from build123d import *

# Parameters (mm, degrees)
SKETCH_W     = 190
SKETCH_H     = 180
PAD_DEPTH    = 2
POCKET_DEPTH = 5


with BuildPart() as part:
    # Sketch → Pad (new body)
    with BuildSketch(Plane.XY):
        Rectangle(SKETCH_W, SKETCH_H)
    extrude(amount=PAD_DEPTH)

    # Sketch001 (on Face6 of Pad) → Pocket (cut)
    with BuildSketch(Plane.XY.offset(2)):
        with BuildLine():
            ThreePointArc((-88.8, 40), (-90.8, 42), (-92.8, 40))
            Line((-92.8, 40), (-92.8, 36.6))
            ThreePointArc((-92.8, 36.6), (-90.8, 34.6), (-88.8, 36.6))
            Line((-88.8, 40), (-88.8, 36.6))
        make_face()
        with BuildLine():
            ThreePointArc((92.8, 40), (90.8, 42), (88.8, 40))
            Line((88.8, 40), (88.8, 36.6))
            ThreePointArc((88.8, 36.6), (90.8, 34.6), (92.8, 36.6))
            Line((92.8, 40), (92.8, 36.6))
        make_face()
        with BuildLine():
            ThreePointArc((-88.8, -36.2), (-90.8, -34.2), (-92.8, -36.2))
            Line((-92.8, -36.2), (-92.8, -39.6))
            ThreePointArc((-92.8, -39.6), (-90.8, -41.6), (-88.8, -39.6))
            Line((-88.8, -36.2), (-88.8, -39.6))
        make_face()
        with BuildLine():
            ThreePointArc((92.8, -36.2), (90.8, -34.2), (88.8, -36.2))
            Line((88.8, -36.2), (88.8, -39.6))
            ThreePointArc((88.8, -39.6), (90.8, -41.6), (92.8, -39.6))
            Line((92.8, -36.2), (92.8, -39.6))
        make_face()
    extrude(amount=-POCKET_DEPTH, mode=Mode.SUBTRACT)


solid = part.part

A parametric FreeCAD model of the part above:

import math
import FreeCAD as App
import Part
import Sketcher

doc = App.newDocument("Part")
body = doc.addObject("PartDesign::Body", "Body")

# Sketch on XY plane
sketch1 = body.newObject("Sketcher::SketchObject", "Sketch")
sketch1.AttachmentSupport = (doc.getObject("XY_Plane"), [""])
sketch1.MapMode = "FlatFace"
sketch1.addGeometry([
    Part.LineSegment(App.Vector(-95, 90, 0), App.Vector(-95, -90, 0)),
    Part.LineSegment(App.Vector(-95, -90, 0), App.Vector(95, -90, 0)),
    Part.LineSegment(App.Vector(95, -90, 0), App.Vector(95, 90, 0)),
    Part.LineSegment(App.Vector(95, 90, 0), App.Vector(-95, 90, 0)),
], False)
sketch1.addConstraint([
    Sketcher.Constraint("Coincident", 0, 2, 1, 1),
    Sketcher.Constraint("Coincident", 1, 2, 2, 1),
    Sketcher.Constraint("Coincident", 2, 2, 3, 1),
    Sketcher.Constraint("Coincident", 3, 2, 0, 1),
    Sketcher.Constraint("Vertical", 0),
    Sketcher.Constraint("Horizontal", 1),
    Sketcher.Constraint("Vertical", 2),
    Sketcher.Constraint("Horizontal", 3),
    Sketcher.Constraint("Symmetric", 0, 2, 2, 2, -1, 1),
    Sketcher.Constraint("DistanceX", 1, 1, 1, 2, 190.0),
    Sketcher.Constraint("DistanceY", 0, 2, 0, 1, 180.0),
])
pad1 = body.newObject("PartDesign::Pad", "Pad")
pad1.Profile = sketch1
pad1.Length = 2

# Sketch on XY plane
sketch2 = body.newObject("Sketcher::SketchObject", "Sketch001")
sketch2.AttachmentSupport = (doc.getObject("XY_Plane"), [""])
sketch2.MapMode = "FlatFace"
sketch2.AttachmentOffset = App.Placement(App.Vector(0, 0, 2), App.Rotation())
sketch2.addGeometry([
    Part.ArcOfCircle(Part.Circle(App.Vector(-90.8, 40, 0), App.Vector(0, 0, 1), 2), math.radians(0), math.radians(180)),  # 0
    Part.LineSegment(App.Vector(-92.8, 40, 0), App.Vector(-92.8, 36.6, 0)),  # 1
    Part.ArcOfCircle(Part.Circle(App.Vector(-90.8, 36.6, 0), App.Vector(0, 0, 1), 2), math.radians(180), math.radians(360)),  # 2
    Part.LineSegment(App.Vector(-88.8, 36.6, 0), App.Vector(-88.8, 40, 0)),  # 3
    Part.ArcOfCircle(Part.Circle(App.Vector(90.8, 40, 0), App.Vector(0, 0, 1), 2), math.radians(0), math.radians(180)),  # 4
    Part.LineSegment(App.Vector(88.8, 40, 0), App.Vector(88.8, 36.6, 0)),  # 5
    Part.ArcOfCircle(Part.Circle(App.Vector(90.8, 36.6, 0), App.Vector(0, 0, 1), 2), math.radians(180), math.radians(360)),  # 6
    Part.LineSegment(App.Vector(92.8, 36.6, 0), App.Vector(92.8, 40, 0)),  # 7
    Part.ArcOfCircle(Part.Circle(App.Vector(-90.8, -36.2, 0), App.Vector(0, 0, 1), 2), math.radians(0), math.radians(180)),  # 8
    Part.LineSegment(App.Vector(-92.8, -36.2, 0), App.Vector(-92.8, -39.6, 0)),  # 9
    Part.ArcOfCircle(Part.Circle(App.Vector(-90.8, -39.6, 0), App.Vector(0, 0, 1), 2), math.radians(180), math.radians(360)),  # 10
    Part.LineSegment(App.Vector(-88.8, -39.6, 0), App.Vector(-88.8, -36.2, 0)),  # 11
    Part.ArcOfCircle(Part.Circle(App.Vector(90.8, -36.2, 0), App.Vector(0, 0, 1), 2), math.radians(0), math.radians(180)),  # 12
    Part.LineSegment(App.Vector(88.8, -36.2, 0), App.Vector(88.8, -39.6, 0)),  # 13
    Part.ArcOfCircle(Part.Circle(App.Vector(90.8, -39.6, 0), App.Vector(0, 0, 1), 2), math.radians(180), math.radians(360)),  # 14
    Part.LineSegment(App.Vector(92.8, -39.6, 0), App.Vector(92.8, -36.2, 0)),  # 15
], False)
sketch2.addConstraint([
    Sketcher.Constraint("Tangent", 0, 2, 1, 1),
    Sketcher.Constraint("Tangent", 1, 2, 2, 1),
    Sketcher.Constraint("Tangent", 2, 2, 3, 1),
    Sketcher.Constraint("Tangent", 3, 2, 0, 1),
    Sketcher.Constraint("Tangent", 4, 2, 5, 1),
    Sketcher.Constraint("Tangent", 5, 2, 6, 1),
    Sketcher.Constraint("Tangent", 6, 2, 7, 1),
    Sketcher.Constraint("Tangent", 7, 2, 4, 1),
    Sketcher.Constraint("Tangent", 8, 2, 9, 1),
    Sketcher.Constraint("Tangent", 9, 2, 10, 1),
    Sketcher.Constraint("Tangent", 10, 2, 11, 1),
    Sketcher.Constraint("Tangent", 11, 2, 8, 1),
    Sketcher.Constraint("Tangent", 12, 2, 13, 1),
    Sketcher.Constraint("Tangent", 13, 2, 14, 1),
    Sketcher.Constraint("Tangent", 14, 2, 15, 1),
    Sketcher.Constraint("Tangent", 15, 2, 12, 1),
    Sketcher.Constraint("Vertical", 1),
    Sketcher.Constraint("Vertical", 3),
    Sketcher.Constraint("Vertical", 5),
    Sketcher.Constraint("Vertical", 7),
    Sketcher.Constraint("Vertical", 9),
    Sketcher.Constraint("Vertical", 11),
    Sketcher.Constraint("Vertical", 13),
    Sketcher.Constraint("Vertical", 15),
    Sketcher.Constraint("Equal", 2, 4),
    Sketcher.Constraint("Equal", 6, 8),
    Sketcher.Constraint("Equal", 10, 12),
    Sketcher.Constraint("Symmetric", 0, 3, 4, 3, -2),
    Sketcher.Constraint("Symmetric", 8, 3, 12, 3, -2),
    Sketcher.Constraint("Horizontal", 2, 3, 6, 3),
    Sketcher.Constraint("Horizontal", 10, 3, 14, 3),
    Sketcher.Constraint("Vertical", 2, 3, 8, 3),
    Sketcher.Constraint("Equal", 7, 9),
    Sketcher.Constraint("Radius", 0, 2.0),
    Sketcher.Constraint("DistanceY", 1, 2, 1, 1, 3.4),
    Sketcher.Constraint("DistanceY", -1, 1, 0, 3, 40.0),
    Sketcher.Constraint("DistanceX", 0, 3, -1, 1, 90.8),
    Sketcher.Constraint("DistanceY", 8, 3, -1, 1, 36.2),
])
pocket1 = body.newObject("PartDesign::Pocket", "Pocket")
pocket1.Profile = sketch2
pocket1.Length = 5

doc.recompute()
